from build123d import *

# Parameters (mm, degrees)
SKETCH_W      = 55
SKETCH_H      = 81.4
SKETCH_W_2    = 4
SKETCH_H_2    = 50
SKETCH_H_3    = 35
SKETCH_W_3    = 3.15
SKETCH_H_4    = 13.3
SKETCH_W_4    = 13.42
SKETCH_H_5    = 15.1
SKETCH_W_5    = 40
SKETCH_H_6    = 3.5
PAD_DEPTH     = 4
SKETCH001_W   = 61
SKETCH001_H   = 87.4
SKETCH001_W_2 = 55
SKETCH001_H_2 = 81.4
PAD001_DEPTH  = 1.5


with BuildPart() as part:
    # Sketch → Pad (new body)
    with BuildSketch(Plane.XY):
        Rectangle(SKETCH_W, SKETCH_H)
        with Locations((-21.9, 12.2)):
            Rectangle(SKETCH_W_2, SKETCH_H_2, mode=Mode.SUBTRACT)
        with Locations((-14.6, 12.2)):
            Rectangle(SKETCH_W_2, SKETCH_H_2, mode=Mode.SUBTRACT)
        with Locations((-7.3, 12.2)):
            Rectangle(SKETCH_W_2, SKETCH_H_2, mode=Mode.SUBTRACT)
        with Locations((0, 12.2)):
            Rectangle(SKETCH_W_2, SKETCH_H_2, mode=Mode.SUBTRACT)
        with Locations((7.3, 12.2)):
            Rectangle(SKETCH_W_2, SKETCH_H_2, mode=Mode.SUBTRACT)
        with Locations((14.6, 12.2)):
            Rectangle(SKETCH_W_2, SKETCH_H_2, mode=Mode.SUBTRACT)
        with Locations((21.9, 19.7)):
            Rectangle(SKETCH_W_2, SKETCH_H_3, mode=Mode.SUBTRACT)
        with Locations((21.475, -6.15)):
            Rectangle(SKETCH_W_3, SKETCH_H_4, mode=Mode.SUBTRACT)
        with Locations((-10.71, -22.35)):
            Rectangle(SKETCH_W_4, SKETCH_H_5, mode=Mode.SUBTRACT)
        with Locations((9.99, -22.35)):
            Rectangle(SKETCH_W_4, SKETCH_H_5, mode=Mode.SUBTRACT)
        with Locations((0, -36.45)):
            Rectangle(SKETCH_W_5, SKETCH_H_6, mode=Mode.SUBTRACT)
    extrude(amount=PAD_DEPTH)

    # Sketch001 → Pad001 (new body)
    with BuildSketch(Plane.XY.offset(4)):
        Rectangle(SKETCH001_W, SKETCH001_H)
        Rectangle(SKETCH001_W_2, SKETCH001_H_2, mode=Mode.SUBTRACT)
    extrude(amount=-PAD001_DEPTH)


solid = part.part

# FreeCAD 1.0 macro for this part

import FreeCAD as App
import Part
import Sketcher
from FreeCAD import Vector
Q = App.Units.Quantity

doc = App.newDocument("Part")
body = doc.addObject("PartDesign::Body", "Body")

# Sketch on XY plane
sketch1 = body.newObject("Sketcher::SketchObject", "Sketch")
sketch1.AttachmentSupport = (doc.getObject("XY_Plane"), [""])
sketch1.MapMode = "FlatFace"
sketch1.addGeometry(Part.LineSegment(Vector(-27.5, 40.7, 0), Vector(-27.5, -40.7, 0)), False)
sketch1.addGeometry(Part.LineSegment(Vector(-27.5, -40.7, 0), Vector(27.5, -40.7, 0)), False)
sketch1.addGeometry(Part.LineSegment(Vector(27.5, -40.7, 0), Vector(27.5, 40.7, 0)), False)
sketch1.addGeometry(Part.LineSegment(Vector(27.5, 40.7, 0), Vector(-27.5, 40.7, 0)), False)
sketch1.addGeometry(Part.LineSegment(Vector(-4, -29.9, 0), Vector(-17.42, -29.9, 0)), False)
sketch1.addGeometry(Part.LineSegment(Vector(-17.42, -29.9, 0), Vector(-17.42, -14.8, 0)), False)
sketch1.addGeometry(Part.LineSegment(Vector(-17.42, -14.8, 0), Vector(-4, -14.8, 0)), False)
sketch1.addGeometry(Part.LineSegment(Vector(-4, -14.8, 0), Vector(-4, -29.9, 0)), False)
sketch1.addGeometry(Part.LineSegment(Vector(20, -38.2, 0), Vector(-20, -38.2, 0)), False)
sketch1.addGeometry(Part.LineSegment(Vector(-20, -38.2, 0), Vector(-20, -34.7, 0)), False)
sketch1.addGeometry(Part.LineSegment(Vector(-20, -34.7, 0), Vector(20, -34.7, 0)), False)
sketch1.addGeometry(Part.LineSegment(Vector(20, -34.7, 0), Vector(20, -38.2, 0)), False)
sketch1.addGeometry(Part.LineSegment(Vector(16.7, -29.9, 0), Vector(3.28, -29.9, 0)), False)
sketch1.addGeometry(Part.LineSegment(Vector(3.28, -29.9, 0), Vector(3.28, -14.8, 0)), False)
sketch1.addGeometry(Part.LineSegment(Vector(3.28, -14.8, 0), Vector(16.7, -14.8, 0)), False)
sketch1.addGeometry(Part.LineSegment(Vector(16.7, -14.8, 0), Vector(16.7, -29.9, 0)), False)
sketch1.addGeometry(Part.LineSegment(Vector(23.05, -12.8, 0), Vector(19.9, -12.8, 0)), False)
sketch1.addGeometry(Part.LineSegment(Vector(19.9, -12.8, 0), Vector(19.9, 0.5, 0)), False)
sketch1.addGeometry(Part.LineSegment(Vector(19.9, 0.5, 0), Vector(23.05, 0.5, 0)), False)
sketch1.addGeometry(Part.LineSegment(Vector(23.05, 0.5, 0), Vector(23.05, -12.8, 0)), False)
sketch1.addGeometry(Part.LineSegment(Vector(-19.9, -12.8, 0), Vector(-23.9, -12.8, 0)), False)
sketch1.addGeometry(Part.LineSegment(Vector(-23.9, -12.8, 0), Vector(-23.9, 37.2, 0)), False)
sketch1.addGeometry(Part.LineSegment(Vector(-23.9, 37.2, 0), Vector(-19.9, 37.2, 0)), False)
sketch1.addGeometry(Part.LineSegment(Vector(-19.9, 37.2, 0), Vector(-19.9, -12.8, 0)), False)
sketch1.addGeometry(Part.LineSegment(Vector(-12.6, -12.8, 0), Vector(-16.6, -12.8, 0)), False)
sketch1.addGeometry(Part.LineSegment(Vector(-16.6, -12.8, 0), Vector(-16.6, 37.2, 0)), False)
sketch1.addGeometry(Part.LineSegment(Vector(-16.6, 37.2, 0), Vector(-12.6, 37.2, 0)), False)
sketch1.addGeometry(Part.LineSegment(Vector(-12.6, 37.2, 0), Vector(-12.6, -12.8, 0)), False)
sketch1.addGeometry(Part.LineSegment(Vector(-5.3, -12.8, 0), Vector(-9.3, -12.8, 0)), False)
sketch1.addGeometry(Part.LineSegment(Vector(-9.3, -12.8, 0), Vector(-9.3, 37.2, 0)), False)
sketch1.addGeometry(Part.LineSegment(Vector(-9.3, 37.2, 0), Vector(-5.3, 37.2, 0)), False)
sketch1.addGeometry(Part.LineSegment(Vector(-5.3, 37.2, 0), Vector(-5.3, -12.8, 0)), False)
sketch1.addGeometry(Part.LineSegment(Vector(2, -12.8, 0), Vector(-2, -12.8, 0)), False)
sketch1.addGeometry(Part.LineSegment(Vector(-2, -12.8, 0), Vector(-2, 37.2, 0)), False)
sketch1.addGeometry(Part.LineSegment(Vector(-2, 37.2, 0), Vector(2, 37.2, 0)), False)
sketch1.addGeometry(Part.LineSegment(Vector(2, 37.2, 0), Vector(2, -12.8, 0)), False)
sketch1.addGeometry(Part.LineSegment(Vector(9.3, -12.8, 0), Vector(5.3, -12.8, 0)), False)
sketch1.addGeometry(Part.LineSegment(Vector(5.3, -12.8, 0), Vector(5.3, 37.2, 0)), False)
sketch1.addGeometry(Part.LineSegment(Vector(5.3, 37.2, 0), Vector(9.3, 37.2, 0)), False)
sketch1.addGeometry(Part.LineSegment(Vector(9.3, 37.2, 0), Vector(9.3, -12.8, 0)), False)
sketch1.addGeometry(Part.LineSegment(Vector(16.6, -12.8, 0), Vector(12.6, -12.8, 0)), False)
sketch1.addGeometry(Part.LineSegment(Vector(12.6, -12.8, 0), Vector(12.6, 37.2, 0)), False)
sketch1.addGeometry(Part.LineSegment(Vector(12.6, 37.2, 0), Vector(16.6, 37.2, 0)), False)
sketch1.addGeometry(Part.LineSegment(Vector(16.6, 37.2, 0), Vector(16.6, -12.8, 0)), False)
sketch1.addGeometry(Part.LineSegment(Vector(23.9, 2.2, 0), Vector(19.9, 2.2, 0)), False)
sketch1.addGeometry(Part.LineSegment(Vector(19.9, 2.2, 0), Vector(19.9, 37.2, 0)), False)
sketch1.addGeometry(Part.LineSegment(Vector(19.9, 37.2, 0), Vector(23.9, 37.2, 0)), False)
sketch1.addGeometry(Part.LineSegment(Vector(23.9, 37.2, 0), Vector(23.9, 2.2, 0)), False)
sketch1.addConstraint(Sketcher.Constraint("Coincident", 0, 2, 1, 1))
sketch1.addConstraint(Sketcher.Constraint("Coincident", 1, 2, 2, 1))
sketch1.addConstraint(Sketcher.Constraint("Coincident", 2, 2, 3, 1))
sketch1.addConstraint(Sketcher.Constraint("Coincident", 3, 2, 0, 1))
sketch1.addConstraint(Sketcher.Constraint("Coincident", 4, 2, 5, 1))
sketch1.addConstraint(Sketcher.Constraint("Coincident", 5, 2, 6, 1))
sketch1.addConstraint(Sketcher.Constraint("Coincident", 6, 2, 7, 1))
sketch1.addConstraint(Sketcher.Constraint("Coincident", 7, 2, 4, 1))
sketch1.addConstraint(Sketcher.Constraint("Coincident", 8, 2, 9, 1))
sketch1.addConstraint(Sketcher.Constraint("Coincident", 9, 2, 10, 1))
sketch1.addConstraint(Sketcher.Constraint("Coincident", 10, 2, 11, 1))
sketch1.addConstraint(Sketcher.Constraint("Coincident", 11, 2, 8, 1))
sketch1.addConstraint(Sketcher.Constraint("Coincident", 12, 2, 13, 1))
sketch1.addConstraint(Sketcher.Constraint("Coincident", 13, 2, 14, 1))
sketch1.addConstraint(Sketcher.Constraint("Coincident", 14, 2, 15, 1))
sketch1.addConstraint(Sketcher.Constraint("Coincident", 15, 2, 12, 1))
sketch1.addConstraint(Sketcher.Constraint("Coincident", 16, 2, 17, 1))
sketch1.addConstraint(Sketcher.Constraint("Coincident", 17, 2, 18, 1))
sketch1.addConstraint(Sketcher.Constraint("Coincident", 18, 2, 19, 1))
sketch1.addConstraint(Sketcher.Constraint("Coincident", 19, 2, 16, 1))
sketch1.addConstraint(Sketcher.Constraint("Coincident", 20, 2, 21, 1))
sketch1.addConstraint(Sketcher.Constraint("Coincident", 21, 2, 22, 1))
sketch1.addConstraint(Sketcher.Constraint("Coincident", 22, 2, 23, 1))
sketch1.addConstraint(Sketcher.Constraint("Coincident", 23, 2, 20, 1))
sketch1.addConstraint(Sketcher.Constraint("Coincident", 24, 2, 25, 1))
sketch1.addConstraint(Sketcher.Constraint("Coincident", 25, 2, 26, 1))
sketch1.addConstraint(Sketcher.Constraint("Coincident", 26, 2, 27, 1))
sketch1.addConstraint(Sketcher.Constraint("Coincident", 27, 2, 24, 1))
sketch1.addConstraint(Sketcher.Constraint("Coincident", 28, 2, 29, 1))
sketch1.addConstraint(Sketcher.Constraint("Coincident", 29, 2, 30, 1))
sketch1.addConstraint(Sketcher.Constraint("Coincident", 30, 2, 31, 1))
sketch1.addConstraint(Sketcher.Constraint("Coincident", 31, 2, 28, 1))
sketch1.addConstraint(Sketcher.Constraint("Coincident", 32, 2, 33, 1))
sketch1.addConstraint(Sketcher.Constraint("Coincident", 33, 2, 34, 1))
sketch1.addConstraint(Sketcher.Constraint("Coincident", 34, 2, 35, 1))
sketch1.addConstraint(Sketcher.Constraint("Coincident", 35, 2, 32, 1))
sketch1.addConstraint(Sketcher.Constraint("Coincident", 36, 2, 37, 1))
sketch1.addConstraint(Sketcher.Constraint("Coincident", 37, 2, 38, 1))
sketch1.addConstraint(Sketcher.Constraint("Coincident", 38, 2, 39, 1))
sketch1.addConstraint(Sketcher.Constraint("Coincident", 39, 2, 36, 1))
sketch1.addConstraint(Sketcher.Constraint("Coincident", 40, 2, 41, 1))
sketch1.addConstraint(Sketcher.Constraint("Coincident", 41, 2, 42, 1))
sketch1.addConstraint(Sketcher.Constraint("Coincident", 42, 2, 43, 1))
sketch1.addConstraint(Sketcher.Constraint("Coincident", 43, 2, 40, 1))
sketch1.addConstraint(Sketcher.Constraint("Coincident", 44, 2, 45, 1))
sketch1.addConstraint(Sketcher.Constraint("Coincident", 45, 2, 46, 1))
sketch1.addConstraint(Sketcher.Constraint("Coincident", 46, 2, 47, 1))
sketch1.addConstraint(Sketcher.Constraint("Coincident", 47, 2, 44, 1))
sketch1.addConstraint(Sketcher.Constraint("Vertical", 0))
sketch1.addConstraint(Sketcher.Constraint("Horizontal", 1))
sketch1.addConstraint(Sketcher.Constraint("Vertical", 2))
sketch1.addConstraint(Sketcher.Constraint("Horizontal", 3))
sketch1.addConstraint(Sketcher.Constraint("Horizontal", 4))
sketch1.addConstraint(Sketcher.Constraint("Vertical", 5))
sketch1.addConstraint(Sketcher.Constraint("Horizontal", 6))
sketch1.addConstraint(Sketcher.Constraint("Vertical", 7))
sketch1.addConstraint(Sketcher.Constraint("Horizontal", 8))
sketch1.addConstraint(Sketcher.Constraint("Vertical", 9))
sketch1.addConstraint(Sketcher.Constraint("Horizontal", 10))
sketch1.addConstraint(Sketcher.Constraint("Vertical", 11))
sketch1.addConstraint(Sketcher.Constraint("Horizontal", 12))
sketch1.addConstraint(Sketcher.Constraint("Vertical", 13))
sketch1.addConstraint(Sketcher.Constraint("Horizontal", 14))
sketch1.addConstraint(Sketcher.Constraint("Vertical", 15))
sketch1.addConstraint(Sketcher.Constraint("Horizontal", 16))
sketch1.addConstraint(Sketcher.Constraint("Vertical", 17))
sketch1.addConstraint(Sketcher.Constraint("Horizontal", 18))
sketch1.addConstraint(Sketcher.Constraint("Vertical", 19))
sketch1.addConstraint(Sketcher.Constraint("Horizontal", 20))
sketch1.addConstraint(Sketcher.Constraint("Vertical", 21))
sketch1.addConstraint(Sketcher.Constraint("Horizontal", 22))
sketch1.addConstraint(Sketcher.Constraint("Vertical", 23))
sketch1.addConstraint(Sketcher.Constraint("Horizontal", 24))
sketch1.addConstraint(Sketcher.Constraint("Vertical", 25))
sketch1.addConstraint(Sketcher.Constraint("Horizontal", 26))
sketch1.addConstraint(Sketcher.Constraint("Vertical", 27))
sketch1.addConstraint(Sketcher.Constraint("Horizontal", 28))
sketch1.addConstraint(Sketcher.Constraint("Vertical", 29))
sketch1.addConstraint(Sketcher.Constraint("Horizontal", 30))
sketch1.addConstraint(Sketcher.Constraint("Vertical", 31))
sketch1.addConstraint(Sketcher.Constraint("Horizontal", 32))
sketch1.addConstraint(Sketcher.Constraint("Vertical", 33))
sketch1.addConstraint(Sketcher.Constraint("Horizontal", 34))
sketch1.addConstraint(Sketcher.Constraint("Vertical", 35))
sketch1.addConstraint(Sketcher.Constraint("Horizontal", 36))
sketch1.addConstraint(Sketcher.Constraint("Vertical", 37))
sketch1.addConstraint(Sketcher.Constraint("Horizontal", 38))
sketch1.addConstraint(Sketcher.Constraint("Vertical", 39))
sketch1.addConstraint(Sketcher.Constraint("Horizontal", 40))
sketch1.addConstraint(Sketcher.Constraint("Vertical", 41))
sketch1.addConstraint(Sketcher.Constraint("Horizontal", 42))
sketch1.addConstraint(Sketcher.Constraint("Vertical", 43))
sketch1.addConstraint(Sketcher.Constraint("Horizontal", 44))
sketch1.addConstraint(Sketcher.Constraint("Vertical", 45))
sketch1.addConstraint(Sketcher.Constraint("Horizontal", 46))
sketch1.addConstraint(Sketcher.Constraint("Vertical", 47))
sketch1.addConstraint(Sketcher.Constraint("Symmetric", 0, 2, 2, 2, -1, 1))
sketch1.addConstraint(Sketcher.Constraint("Symmetric", 16, 2, 23, 2, -2))
sketch1.addConstraint(Sketcher.Constraint("Symmetric", 31, 2, 36, 2, -2))
sketch1.addConstraint(Sketcher.Constraint("Symmetric", 29, 2, 38, 2, -2))
sketch1.addConstraint(Sketcher.Constraint("Symmetric", 27, 2, 40, 2, -2))
sketch1.addConstraint(Sketcher.Constraint("Symmetric", 25, 2, 42, 2, -2))
sketch1.addConstraint(Sketcher.Constraint("Symmetric", 22, 2, 45, 2, -2))
sketch1.addConstraint(Sketcher.Constraint("Horizontal", 7, 2, 12, 2))
sketch1.addConstraint(Sketcher.Constraint("Horizontal", 6, 2, 13, 2))
sketch1.addConstraint(Sketcher.Constraint("Horizontal", 23, 2, 24, 2))
sketch1.addConstraint(Sketcher.Constraint("Horizontal", 22, 2, 25, 2))
sketch1.addConstraint(Sketcher.Constraint("Horizontal", 27, 2, 28, 2))
sketch1.addConstraint(Sketcher.Constraint("Horizontal", 26, 2, 29, 2))
sketch1.addConstraint(Sketcher.Constraint("Horizontal", 31, 2, 32, 2))
sketch1.addConstraint(Sketcher.Constraint("Horizontal", 30, 2, 33, 2))
sketch1.addConstraint(Sketcher.Constraint("Equal", 6, 12))
sketch1.addConstraint(Sketcher.Constraint("Equal", 22, 24))
sketch1.addConstraint(Sketcher.Constraint("Equal", 26, 28))
sketch1.addConstraint(Sketcher.Constraint("Equal", 30, 32))
sketch1.addConstraint(Sketcher.Constraint("Equal", 42, 44))
sketch1.addConstraint(Sketcher.Constraint("DistanceX", 1, 1, 1, 2, Q("55 mm")))
sketch1.addConstraint(Sketcher.Constraint("DistanceX", 8, 2, 8, 1, Q("40 mm")))
sketch1.addConstraint(Sketcher.Constraint("DistanceX", 20, 2, 20, 1, Q("4 mm")))
sketch1.addConstraint(Sketcher.Constraint("DistanceY", 21, 1, 21, 2, Q("50 mm")))
sketch1.addConstraint(Sketcher.Constraint("DistanceY", 45, 1, 45, 2, Q("35 mm")))
sketch1.addConstraint(Sketcher.Constraint("DistanceY", 0, 2, 0, 1, Q("81.4 mm")))
sketch1.addConstraint(Sketcher.Constraint("DistanceY", 5, 1, 5, 2, Q("15.1 mm")))
sketch1.addConstraint(Sketcher.Constraint("DistanceY", 9, 1, 9, 2, Q("3.5 mm")))
sketch1.addConstraint(Sketcher.Constraint("DistanceY", 17, 1, 17, 2, Q("13.3 mm")))
sketch1.addConstraint(Sketcher.Constraint("DistanceX", 6, 2, -1, 1, Q("4 mm")))
sketch1.addConstraint(Sketcher.Constraint("DistanceX", 8, 2, -1, 1, Q("20 mm")))
sketch1.addConstraint(Sketcher.Constraint("DistanceX", 32, 2, -1, 1, Q("2 mm")))
sketch1.addConstraint(Sketcher.Constraint("DistanceY", 0, 2, 9, 2, Q("6 mm")))
sketch1.addConstraint(Sketcher.Constraint("DistanceY", 14, 2, 16, 2, Q("2 mm")))
sketch1.addConstraint(Sketcher.Constraint("DistanceX", 4, 2, 4, 1, Q("13.42 mm")))
sketch1.addConstraint(Sketcher.Constraint("DistanceX", 16, 2, 16, 1, Q("3.15 mm")))
sketch1.addConstraint(Sketcher.Constraint("DistanceY", 4, 2, -1, 1, Q("29.9 mm")))
sketch1.addConstraint(Sketcher.Constraint("DistanceX", -1, 1, 14, 2, Q("16.7 mm")))
sketch1.addConstraint(Sketcher.Constraint("DistanceX", -1, 1, 16, 2, Q("19.9 mm")))
sketch1.addConstraint(Sketcher.Constraint("DistanceX", 24, 2, -1, 1, Q("16.6 mm")))
sketch1.addConstraint(Sketcher.Constraint("DistanceX", 28, 2, -1, 1, Q("9.3 mm")))
pad1 = body.newObject("PartDesign::Pad", "Pad")
pad1.Profile = sketch1
pad1.Length = 4

# Sketch on XY plane
sketch2 = body.newObject("Sketcher::SketchObject", "Sketch001")
sketch2.AttachmentSupport = (doc.getObject("XY_Plane"), [""])
sketch2.MapMode = "FlatFace"
sketch2.AttachmentOffset = App.Placement(Vector(0, 0, 4), App.Rotation())
sketch2.addGeometry(Part.LineSegment(Vector(-30.5, 43.7, 0), Vector(-30.5, -43.7, 0)), False)
sketch2.addGeometry(Part.LineSegment(Vector(-30.5, -43.7, 0), Vector(30.5, -43.7, 0)), False)
sketch2.addGeometry(Part.LineSegment(Vector(30.5, -43.7, 0), Vector(30.5, 43.7, 0)), False)
sketch2.addGeometry(Part.LineSegment(Vector(30.5, 43.7, 0), Vector(-30.5, 43.7, 0)), False)
sketch2.addGeometry(Part.LineSegment(Vector(27.5, -40.7, 0), Vector(-27.5, -40.7, 0)), False)
sketch2.addGeometry(Part.LineSegment(Vector(-27.5, -40.7, 0), Vector(-27.5, 40.7, 0)), False)
sketch2.addGeometry(Part.LineSegment(Vector(-27.5, 40.7, 0), Vector(27.5, 40.7, 0)), False)
sketch2.addGeometry(Part.LineSegment(Vector(27.5, 40.7, 0), Vector(27.5, -40.7, 0)), False)
sketch2.addConstraint(Sketcher.Constraint("Coincident", 0, 2, 1, 1))
sketch2.addConstraint(Sketcher.Constraint("Coincident", 1, 2, 2, 1))
sketch2.addConstraint(Sketcher.Constraint("Coincident", 2, 2, 3, 1))
sketch2.addConstraint(Sketcher.Constraint("Coincident", 3, 2, 0, 1))
sketch2.addConstraint(Sketcher.Constraint("Coincident", 4, 2, 5, 1))
sketch2.addConstraint(Sketcher.Constraint("Coincident", 5, 2, 6, 1))
sketch2.addConstraint(Sketcher.Constraint("Coincident", 6, 2, 7, 1))
sketch2.addConstraint(Sketcher.Constraint("Coincident", 7, 2, 4, 1))
sketch2.addConstraint(Sketcher.Constraint("Vertical", 0))
sketch2.addConstraint(Sketcher.Constraint("Horizontal", 1))
sketch2.addConstraint(Sketcher.Constraint("Vertical", 2))
sketch2.addConstraint(Sketcher.Constraint("Horizontal", 3))
sketch2.addConstraint(Sketcher.Constraint("Horizontal", 4))
sketch2.addConstraint(Sketcher.Constraint("Vertical", 5))
sketch2.addConstraint(Sketcher.Constraint("Horizontal", 6))
sketch2.addConstraint(Sketcher.Constraint("Vertical", 7))
sketch2.addConstraint(Sketcher.Constraint("Symmetric", 0, 2, 2, 2, -1, 1))
sketch2.addConstraint(Sketcher.Constraint("Symmetric", 4, 2, 6, 2, -1, 1))
sketch2.addConstraint(Sketcher.Constraint("DistanceX", 1, 1, 1, 2, Q("61 mm")))
sketch2.addConstraint(Sketcher.Constraint("DistanceX", 4, 2, 4, 1, Q("55 mm")))
sketch2.addConstraint(Sketcher.Constraint("DistanceY", 0, 2, 0, 1, Q("87.4 mm")))
sketch2.addConstraint(Sketcher.Constraint("DistanceY", 5, 1, 5, 2, Q("81.4 mm")))
pad2 = body.newObject("PartDesign::Pad", "Pad001")
pad2.Profile = sketch2
pad2.Length = 1.5
pad2.Reversed = True

doc.recompute()
